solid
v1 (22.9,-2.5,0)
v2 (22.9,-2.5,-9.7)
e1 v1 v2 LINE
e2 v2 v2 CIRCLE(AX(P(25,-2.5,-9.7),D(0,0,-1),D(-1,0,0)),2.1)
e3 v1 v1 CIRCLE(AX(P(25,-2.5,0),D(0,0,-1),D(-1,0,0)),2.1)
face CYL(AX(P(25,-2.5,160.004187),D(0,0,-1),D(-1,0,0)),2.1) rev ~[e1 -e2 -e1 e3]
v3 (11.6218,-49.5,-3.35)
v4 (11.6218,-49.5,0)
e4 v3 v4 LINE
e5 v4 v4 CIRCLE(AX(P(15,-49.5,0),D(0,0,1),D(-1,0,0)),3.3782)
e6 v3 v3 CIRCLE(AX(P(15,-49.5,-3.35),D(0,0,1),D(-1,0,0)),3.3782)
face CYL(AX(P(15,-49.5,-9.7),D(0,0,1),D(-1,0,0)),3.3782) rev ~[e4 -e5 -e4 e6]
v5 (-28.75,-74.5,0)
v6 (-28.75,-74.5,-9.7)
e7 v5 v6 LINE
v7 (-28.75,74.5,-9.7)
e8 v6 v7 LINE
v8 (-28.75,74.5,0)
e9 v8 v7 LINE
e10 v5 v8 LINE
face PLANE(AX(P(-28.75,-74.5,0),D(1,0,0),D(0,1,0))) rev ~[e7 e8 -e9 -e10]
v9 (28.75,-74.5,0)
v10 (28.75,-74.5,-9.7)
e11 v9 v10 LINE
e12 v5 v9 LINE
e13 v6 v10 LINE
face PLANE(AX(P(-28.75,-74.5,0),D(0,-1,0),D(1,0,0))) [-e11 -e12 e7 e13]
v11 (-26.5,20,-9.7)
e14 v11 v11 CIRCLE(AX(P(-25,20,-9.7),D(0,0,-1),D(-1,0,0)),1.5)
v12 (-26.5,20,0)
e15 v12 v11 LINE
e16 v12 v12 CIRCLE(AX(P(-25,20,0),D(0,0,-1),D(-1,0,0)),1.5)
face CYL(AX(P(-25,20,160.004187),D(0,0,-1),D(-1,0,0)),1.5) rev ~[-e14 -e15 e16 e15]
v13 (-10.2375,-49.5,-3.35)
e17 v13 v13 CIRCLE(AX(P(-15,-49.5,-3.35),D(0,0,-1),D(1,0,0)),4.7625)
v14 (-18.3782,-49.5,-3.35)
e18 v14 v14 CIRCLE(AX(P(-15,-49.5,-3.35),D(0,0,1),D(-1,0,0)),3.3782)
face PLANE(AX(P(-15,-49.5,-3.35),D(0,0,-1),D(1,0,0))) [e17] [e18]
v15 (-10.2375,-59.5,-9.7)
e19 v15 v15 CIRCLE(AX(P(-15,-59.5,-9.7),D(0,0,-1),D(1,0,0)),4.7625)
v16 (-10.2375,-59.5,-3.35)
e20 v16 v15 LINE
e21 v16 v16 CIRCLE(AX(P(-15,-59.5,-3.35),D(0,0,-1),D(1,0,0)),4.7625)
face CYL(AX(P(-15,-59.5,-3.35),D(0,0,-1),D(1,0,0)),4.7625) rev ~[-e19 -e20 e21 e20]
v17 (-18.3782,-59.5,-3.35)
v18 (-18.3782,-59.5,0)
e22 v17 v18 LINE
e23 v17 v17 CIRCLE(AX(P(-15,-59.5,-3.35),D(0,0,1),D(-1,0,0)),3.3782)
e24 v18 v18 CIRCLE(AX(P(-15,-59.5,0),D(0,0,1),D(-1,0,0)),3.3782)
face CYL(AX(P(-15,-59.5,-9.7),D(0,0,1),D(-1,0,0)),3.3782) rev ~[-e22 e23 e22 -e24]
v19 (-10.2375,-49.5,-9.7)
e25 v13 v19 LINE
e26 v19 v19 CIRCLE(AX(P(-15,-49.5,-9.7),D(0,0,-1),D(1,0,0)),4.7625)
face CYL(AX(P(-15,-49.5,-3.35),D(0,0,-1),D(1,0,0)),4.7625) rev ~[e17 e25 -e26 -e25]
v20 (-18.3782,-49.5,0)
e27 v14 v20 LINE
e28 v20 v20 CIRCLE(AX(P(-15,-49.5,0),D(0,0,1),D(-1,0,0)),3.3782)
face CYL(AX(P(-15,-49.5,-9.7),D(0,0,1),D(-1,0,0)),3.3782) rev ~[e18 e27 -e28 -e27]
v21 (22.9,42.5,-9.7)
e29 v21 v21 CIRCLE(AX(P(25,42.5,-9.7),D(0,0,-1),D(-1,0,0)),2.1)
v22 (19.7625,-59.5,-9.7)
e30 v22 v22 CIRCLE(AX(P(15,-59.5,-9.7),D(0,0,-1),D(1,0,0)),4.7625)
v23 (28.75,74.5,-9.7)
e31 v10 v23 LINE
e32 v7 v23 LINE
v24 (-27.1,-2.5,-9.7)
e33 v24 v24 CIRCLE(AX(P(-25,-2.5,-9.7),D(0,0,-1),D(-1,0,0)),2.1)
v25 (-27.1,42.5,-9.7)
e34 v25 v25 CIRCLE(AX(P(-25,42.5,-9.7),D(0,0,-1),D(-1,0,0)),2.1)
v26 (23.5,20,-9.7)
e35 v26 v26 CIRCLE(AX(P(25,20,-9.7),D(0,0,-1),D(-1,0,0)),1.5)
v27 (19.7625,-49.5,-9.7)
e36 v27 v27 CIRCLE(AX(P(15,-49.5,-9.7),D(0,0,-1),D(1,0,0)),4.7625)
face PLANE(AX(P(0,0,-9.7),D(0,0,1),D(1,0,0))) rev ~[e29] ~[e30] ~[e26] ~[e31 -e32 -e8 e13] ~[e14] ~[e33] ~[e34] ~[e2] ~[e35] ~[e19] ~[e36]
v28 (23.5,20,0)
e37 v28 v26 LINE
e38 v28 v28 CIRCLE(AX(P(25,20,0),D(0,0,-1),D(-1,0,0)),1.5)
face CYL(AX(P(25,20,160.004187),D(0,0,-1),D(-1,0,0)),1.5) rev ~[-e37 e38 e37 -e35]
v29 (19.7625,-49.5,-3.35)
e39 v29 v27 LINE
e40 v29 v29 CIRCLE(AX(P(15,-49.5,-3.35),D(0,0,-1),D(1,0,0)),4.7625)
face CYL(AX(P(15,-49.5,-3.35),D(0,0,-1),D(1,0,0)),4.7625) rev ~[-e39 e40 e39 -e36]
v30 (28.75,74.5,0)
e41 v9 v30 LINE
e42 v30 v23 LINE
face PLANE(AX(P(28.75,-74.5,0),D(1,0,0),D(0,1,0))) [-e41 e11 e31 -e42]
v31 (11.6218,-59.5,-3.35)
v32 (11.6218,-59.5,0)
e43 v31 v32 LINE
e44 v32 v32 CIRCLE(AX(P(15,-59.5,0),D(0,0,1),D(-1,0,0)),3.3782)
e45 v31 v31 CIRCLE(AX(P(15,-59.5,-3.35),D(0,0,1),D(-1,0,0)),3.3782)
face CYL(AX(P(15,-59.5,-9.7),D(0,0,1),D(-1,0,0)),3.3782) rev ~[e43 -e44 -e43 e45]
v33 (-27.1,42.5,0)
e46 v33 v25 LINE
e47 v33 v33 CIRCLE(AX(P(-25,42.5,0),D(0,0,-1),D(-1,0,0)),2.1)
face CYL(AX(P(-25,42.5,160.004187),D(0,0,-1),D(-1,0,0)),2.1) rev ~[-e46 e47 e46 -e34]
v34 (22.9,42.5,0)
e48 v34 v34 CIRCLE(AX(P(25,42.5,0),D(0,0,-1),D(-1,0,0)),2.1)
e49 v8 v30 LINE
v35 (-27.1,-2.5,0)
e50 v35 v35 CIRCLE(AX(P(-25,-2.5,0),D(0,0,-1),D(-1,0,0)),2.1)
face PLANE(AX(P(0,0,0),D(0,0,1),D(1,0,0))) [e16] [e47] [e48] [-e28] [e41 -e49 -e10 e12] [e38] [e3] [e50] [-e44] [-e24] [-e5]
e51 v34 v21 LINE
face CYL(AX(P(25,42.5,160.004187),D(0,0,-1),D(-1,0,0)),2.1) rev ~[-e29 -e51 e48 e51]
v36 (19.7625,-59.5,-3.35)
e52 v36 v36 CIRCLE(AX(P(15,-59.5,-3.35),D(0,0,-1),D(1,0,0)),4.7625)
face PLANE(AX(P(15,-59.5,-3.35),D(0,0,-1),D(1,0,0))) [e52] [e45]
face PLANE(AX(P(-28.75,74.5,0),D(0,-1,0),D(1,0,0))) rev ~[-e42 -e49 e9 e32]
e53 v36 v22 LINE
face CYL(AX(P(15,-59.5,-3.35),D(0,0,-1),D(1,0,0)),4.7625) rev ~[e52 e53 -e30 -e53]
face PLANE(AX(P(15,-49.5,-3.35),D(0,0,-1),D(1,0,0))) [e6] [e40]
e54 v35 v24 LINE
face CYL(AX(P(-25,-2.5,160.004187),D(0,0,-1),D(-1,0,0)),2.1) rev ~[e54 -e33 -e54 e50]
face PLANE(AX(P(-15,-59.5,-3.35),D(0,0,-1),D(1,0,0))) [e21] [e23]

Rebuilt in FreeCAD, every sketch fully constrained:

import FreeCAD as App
import Part
import Sketcher
Q = App.Units.Quantity

doc = App.newDocument("Part")
body = doc.addObject("PartDesign::Body", "Body")

sketch1 = doc.addObject("Sketcher::SketchObject", "Sketch")
body.addObject(sketch1)
sketch1.AttachmentSupport = (doc.XY_Plane, [""])
sketch1.MapMode = "FlatFace"
sketch1.addGeometry([
    Part.LineSegment(App.Vector(-29, 74, 0), App.Vector(-29, -74, 0)),
    Part.LineSegment(App.Vector(-29, -74, 0), App.Vector(29, -74, 0)),
    Part.LineSegment(App.Vector(29, -74, 0), App.Vector(29, 74, 0)),
    Part.LineSegment(App.Vector(29, 74, 0), App.Vector(-29, 74, 0)),
], False)
sketch1.addConstraint([
    Sketcher.Constraint("Coincident", 0, 2, 1, 1),
    Sketcher.Constraint("Coincident", 1, 2, 2, 1),
    Sketcher.Constraint("Coincident", 2, 2, 3, 1),
    Sketcher.Constraint("Coincident", 3, 2, 0, 1),
    Sketcher.Constraint("Vertical", 0),
    Sketcher.Constraint("Horizontal", 1),
    Sketcher.Constraint("Vertical", 2),
    Sketcher.Constraint("Horizontal", 3),
    Sketcher.Constraint("Symmetric", 0, 2, 2, 2, -1, 1),
    Sketcher.Constraint("DistanceY", 0, 2, 0, 1, Q("149 mm")),
    Sketcher.Constraint("DistanceX", 1, 1, 1, 2, Q("57.5 mm")),
])
pad1 = doc.addObject("PartDesign::Pad", "Pad")
body.addObject(pad1)
pad1.Profile = sketch1
pad1.Length = 9.7
pad1.Reversed = True

sketch2 = doc.addObject("Sketcher::SketchObject", "Sketch001")
body.addObject(sketch2)
sketch2.AttachmentSupport = (doc.XY_Plane, [""])
sketch2.MapMode = "FlatFace"
sketch2.addGeometry([
    Part.Circle(App.Vector(-25, 42.5, 0), App.Vector(0, 0, 1), 2.1),
    Part.Circle(App.Vector(25, 42.5, 0), App.Vector(0, 0, 1), 2.1),
    Part.Circle(App.Vector(-25, -2.5, 0), App.Vector(0, 0, 1), 2.1),
    Part.Circle(App.Vector(25, -2.5, 0), App.Vector(0, 0, 1), 2.1),
], False)
sketch2.addConstraint([
    Sketcher.Constraint("Equal", 0, 1),
    Sketcher.Constraint("Equal", 1, 2),
    Sketcher.Constraint("Equal", 2, 3),
    Sketcher.Constraint("Symmetric", 0, 3, 1, 3, -2),
    Sketcher.Constraint("Symmetric", 2, 3, 3, 3, -2),
    Sketcher.Constraint("Vertical", 0, 3, 2, 3),
    Sketcher.Constraint("Diameter", 0, Q("4.2 mm")),
    Sketcher.Constraint("DistanceX", 0, 3, -1, 1, Q("25 mm")),
    Sketcher.Constraint("DistanceY", 2, 3, 0, 3, Q("45 mm")),
    Sketcher.Constraint("DistanceY", -1, 1, 0, 3, Q("42.5 mm")),
])
doc.recompute()
hole = doc.addObject("PartDesign::Hole", "Hole")
body.addObject(hole)
hole.Profile = sketch2
hole.ThreadType = "None"
hole.Diameter = 4.2
hole.DepthType = "ThroughAll"

sketch3 = doc.addObject("Sketcher::SketchObject", "Sketch002")
body.addObject(sketch3)
sketch3.AttachmentSupport = (doc.XY_Plane, [""])
sketch3.MapMode = "FlatFace"
sketch3.addGeometry([
    Part.Circle(App.Vector(-25, 20, 0), App.Vector(0, 0, 1), 1.5),
    Part.Circle(App.Vector(25, 20, 0), App.Vector(0, 0, 1), 1.5),
], False)
sketch3.addConstraint([
    Sketcher.Constraint("Equal", 0, 1),
    Sketcher.Constraint("Symmetric", 0, 3, 1, 3, -2),
    Sketcher.Constraint("Diameter", 0, Q("3 mm")),
    Sketcher.Constraint("DistanceX", 0, 3, -1, 1, Q("25 mm")),
    Sketcher.Constraint("DistanceY", -1, 1, 0, 3, Q("20 mm")),
])
doc.recompute()
hole2 = doc.addObject("PartDesign::Hole", "Hole001")
body.addObject(hole2)
hole2.Profile = sketch3
hole2.ThreadType = "None"
hole2.Diameter = 3
hole2.DepthType = "ThroughAll"

sketch4 = doc.addObject("Sketcher::SketchObject", "Sketch003")
body.addObject(sketch4)
sketch4.AttachmentSupport = (doc.XY_Plane, [""])
sketch4.MapMode = "FlatFace"
sketch4.AttachmentOffset = App.Placement(App.Vector(0, 0, -9.7), App.Rotation())
sketch4.addGeometry([
    Part.Circle(App.Vector(-15, -49.5, 0), App.Vector(0, 0, 1), 3.4),
    Part.Circle(App.Vector(15, -49.5, 0), App.Vector(0, 0, 1), 3.4),
], False)
sketch4.addConstraint([
    Sketcher.Constraint("Equal", 0, 1),
    Sketcher.Constraint("Symmetric", 0, 3, 1, 3, -2),
    Sketcher.Constraint("DistanceX", 0, 3, -1, 1, Q("15 mm")),
    Sketcher.Constraint("Diameter", 0, Q("6.7564 mm")),
    Sketcher.Constraint("DistanceY", 0, 3, -1, 1, Q("49.5 mm")),
])
doc.recompute()
hole3 = doc.addObject("PartDesign::Hole", "Hole002")
body.addObject(hole3)
hole3.Profile = sketch4
hole3.ThreadType = "None"
hole3.Diameter = 6.7564
hole3.DepthType = "Dimension"
hole3.Depth = 20
hole3.DrillPoint = "Angled"
hole3.DrillPointAngle = 118
hole3.HoleCutType = "Counterbore"
hole3.HoleCutDiameter = 9.525
hole3.HoleCutDepth = 6.35
hole3.Reversed = True

sketch5 = doc.addObject("Sketcher::SketchObject", "Sketch004")
body.addObject(sketch5)
sketch5.AttachmentSupport = (doc.XY_Plane, [""])
sketch5.MapMode = "FlatFace"
sketch5.AttachmentOffset = App.Placement(App.Vector(0, 0, -9.7), App.Rotation())
sketch5.addGeometry([
    Part.Circle(App.Vector(-15, -59.5, 0), App.Vector(0, 0, 1), 3.4),
    Part.Circle(App.Vector(15, -59.5, 0), App.Vector(0, 0, 1), 3.4),
], False)
sketch5.addConstraint([
    Sketcher.Constraint("Equal", 0, 1),
    Sketcher.Constraint("Symmetric", 0, 3, 1, 3, -2),
    Sketcher.Constraint("DistanceX", 0, 3, -1, 1, Q("15 mm")),
    Sketcher.Constraint("Diameter", 0, Q("6.7564 mm")),
    Sketcher.Constraint("DistanceY", 0, 3, -1, 1, Q("59.5 mm")),
])
doc.recompute()
hole4 = doc.addObject("PartDesign::Hole", "Hole003")
body.addObject(hole4)
hole4.Profile = sketch5
hole4.ThreadType = "None"
hole4.Diameter = 6.7564
hole4.DepthType = "Dimension"
hole4.Depth = 20
hole4.DrillPoint = "Angled"
hole4.DrillPointAngle = 118
hole4.HoleCutType = "Counterbore"
hole4.HoleCutDiameter = 9.525
hole4.HoleCutDepth = 6.35
hole4.Reversed = True

doc.recompute()
